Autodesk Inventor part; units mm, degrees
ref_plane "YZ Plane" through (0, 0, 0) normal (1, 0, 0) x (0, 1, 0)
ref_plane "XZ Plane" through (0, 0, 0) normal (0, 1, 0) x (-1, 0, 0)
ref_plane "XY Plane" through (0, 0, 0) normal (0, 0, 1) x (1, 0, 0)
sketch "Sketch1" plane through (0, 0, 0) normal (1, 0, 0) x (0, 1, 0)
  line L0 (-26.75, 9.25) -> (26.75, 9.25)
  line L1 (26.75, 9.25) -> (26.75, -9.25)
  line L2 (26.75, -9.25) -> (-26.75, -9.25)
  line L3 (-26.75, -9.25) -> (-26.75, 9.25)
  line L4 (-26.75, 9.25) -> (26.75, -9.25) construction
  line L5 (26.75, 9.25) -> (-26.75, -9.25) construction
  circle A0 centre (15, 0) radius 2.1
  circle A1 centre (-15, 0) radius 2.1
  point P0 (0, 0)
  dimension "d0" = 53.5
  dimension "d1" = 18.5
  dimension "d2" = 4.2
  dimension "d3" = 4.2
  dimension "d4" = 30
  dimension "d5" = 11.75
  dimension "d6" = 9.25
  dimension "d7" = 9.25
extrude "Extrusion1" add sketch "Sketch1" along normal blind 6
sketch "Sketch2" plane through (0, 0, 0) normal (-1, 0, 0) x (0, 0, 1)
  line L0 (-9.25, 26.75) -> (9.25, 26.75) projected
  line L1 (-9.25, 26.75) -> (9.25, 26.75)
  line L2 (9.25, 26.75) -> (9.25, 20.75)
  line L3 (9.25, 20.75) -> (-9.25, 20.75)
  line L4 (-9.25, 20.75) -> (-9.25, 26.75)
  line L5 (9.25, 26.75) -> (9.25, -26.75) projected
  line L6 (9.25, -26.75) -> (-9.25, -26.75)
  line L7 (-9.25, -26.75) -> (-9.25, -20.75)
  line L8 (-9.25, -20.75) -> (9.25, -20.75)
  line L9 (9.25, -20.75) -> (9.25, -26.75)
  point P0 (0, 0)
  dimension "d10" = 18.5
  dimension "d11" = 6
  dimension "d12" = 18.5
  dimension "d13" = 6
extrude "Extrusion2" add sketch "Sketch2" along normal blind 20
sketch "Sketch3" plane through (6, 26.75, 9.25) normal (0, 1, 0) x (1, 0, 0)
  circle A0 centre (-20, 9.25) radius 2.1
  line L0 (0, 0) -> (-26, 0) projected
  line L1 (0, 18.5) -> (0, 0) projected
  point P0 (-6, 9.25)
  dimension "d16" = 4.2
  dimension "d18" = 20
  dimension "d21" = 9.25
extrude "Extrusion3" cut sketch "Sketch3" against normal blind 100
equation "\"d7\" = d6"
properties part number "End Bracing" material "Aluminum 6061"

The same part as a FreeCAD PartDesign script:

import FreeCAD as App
import Part
import Sketcher

V = App.Vector
Q = App.Units.Quantity

doc = App.newDocument("Part")
body = doc.addObject("PartDesign::Body", "Body")

# Sketch on YZ plane
sketch1 = doc.addObject("Sketcher::SketchObject", "Sketch")
body.addObject(sketch1)
sketch1.AttachmentSupport = (doc.YZ_Plane, [""])
sketch1.MapMode = "FlatFace"
sketch1.addGeometry([
    Part.LineSegment(V(26.8, 9.2, 0), V(-26.8, 9.2, 0)),  # 0
    Part.LineSegment(V(-26.8, 9.2, 0), V(-26.8, -9.2, 0)),  # 1
    Part.LineSegment(V(-26.8, -9.2, 0), V(26.8, -9.2, 0)),  # 2
    Part.LineSegment(V(26.8, -9.2, 0), V(26.8, 9.2, 0)),  # 3
    Part.Circle(V(-15, 0, 0), V(0, 0, 1), 2.1),  # 4
    Part.Circle(V(15, 0, 0), V(0, 0, 1), 2.1),  # 5
], False)
sketch1.addConstraint([
    Sketcher.Constraint("Coincident", 0, 2, 1, 1),
    Sketcher.Constraint("Coincident", 1, 2, 2, 1),
    Sketcher.Constraint("Coincident", 2, 2, 3, 1),
    Sketcher.Constraint("Coincident", 3, 2, 0, 1),
    Sketcher.Constraint("Horizontal", 0),
    Sketcher.Constraint("Vertical", 1),
    Sketcher.Constraint("Horizontal", 2),
    Sketcher.Constraint("Vertical", 3),
    Sketcher.Constraint("Equal", 4, 5),
    Sketcher.Constraint("Symmetric", 4, 3, 5, 3, -1, 1),
    Sketcher.Constraint("Symmetric", 0, 2, 2, 2, -1, 1),
    Sketcher.Constraint("PointOnObject", 4, 3, -1),
    Sketcher.Constraint("Diameter", 4, Q("4.2 mm")),
    Sketcher.Constraint("DistanceX", 0, 2, 0, 1, Q("53.5 mm")),
    Sketcher.Constraint("DistanceY", 1, 2, 1, 1, Q("18.5 mm")),
    Sketcher.Constraint("DistanceX", 4, 3, 5, 3, Q("30 mm")),
])
pad1 = doc.addObject("PartDesign::Pad", "Pad")
body.addObject(pad1)
pad1.Profile = sketch1
pad1.Length = 6

# Sketch on YZ plane
sketch2 = doc.addObject("Sketcher::SketchObject", "Sketch001")
body.addObject(sketch2)
sketch2.AttachmentSupport = (doc.YZ_Plane, [""])
sketch2.MapMode = "FlatFace"
sketch2.addGeometry([
    Part.LineSegment(V(-27, 9, 0), V(-21, 9, 0)),  # 0
    Part.LineSegment(V(-21, 9, 0), V(-21, -9, 0)),  # 1
    Part.LineSegment(V(-21, -9, 0), V(-27, -9, 0)),  # 2
    Part.LineSegment(V(-27, -9, 0), V(-27, 9, 0)),  # 3
    Part.LineSegment(V(27, 9, 0), V(27, -9, 0)),  # 4
    Part.LineSegment(V(27, -9, 0), V(21, -9, 0)),  # 5
    Part.LineSegment(V(21, -9, 0), V(21, 9, 0)),  # 6
    Part.LineSegment(V(21, 9, 0), V(27, 9, 0)),  # 7
], False)
sketch2.addConstraint([
    Sketcher.Constraint("Coincident", 0, 2, 1, 1),
    Sketcher.Constraint("Coincident", 1, 2, 2, 1),
    Sketcher.Constraint("Coincident", 2, 2, 3, 1),
    Sketcher.Constraint("Coincident", 3, 2, 0, 1),
    Sketcher.Constraint("Coincident", 4, 2, 5, 1),
    Sketcher.Constraint("Coincident", 5, 2, 6, 1),
    Sketcher.Constraint("Coincident", 6, 2, 7, 1),
    Sketcher.Constraint("Coincident", 7, 2, 4, 1),
    Sketcher.Constraint("Horizontal", 0),
    Sketcher.Constraint("Vertical", 1),
    Sketcher.Constraint("Horizontal", 2),
    Sketcher.Constraint("Vertical", 3),
    Sketcher.Constraint("Vertical", 4),
    Sketcher.Constraint("Horizontal", 5),
    Sketcher.Constraint("Vertical", 6),
    Sketcher.Constraint("Horizontal", 7),
    Sketcher.Constraint("Symmetric", 3, 2, 4, 2, -1, 1),
    Sketcher.Constraint("Symmetric", 1, 2, 6, 2, -1, 1),
    Sketcher.Constraint("Horizontal", 2, 2, 4, 2),
    Sketcher.Constraint("DistanceX", 0, 1, 0, 2, Q("6 mm")),
    Sketcher.Constraint("DistanceY", 1, 2, 1, 1, Q("18.5 mm")),
    Sketcher.Constraint("DistanceX", 1, 2, 4, 2, Q("47.5 mm")),
])
pad2 = doc.addObject("PartDesign::Pad", "Pad001")
body.addObject(pad2)
pad2.Profile = sketch2
pad2.Length = 20
pad2.Reversed = True

# Sketch on XZ plane
sketch3 = doc.addObject("Sketcher::SketchObject", "Sketch002")
body.addObject(sketch3)
sketch3.AttachmentSupport = (doc.XZ_Plane, [""])
sketch3.MapMode = "FlatFace"
sketch3.AttachmentOffset = App.Placement(V(0, 0, -26.75), App.Rotation())
sketch3.addGeometry(Part.Circle(V(-14, 0, 0), V(0, 0, 1), 2.1), False)
sketch3.addConstraint([
    Sketcher.Constraint("PointOnObject", 0, 3, -1),
    Sketcher.Constraint("Diameter", 0, Q("4.2 mm")),
    Sketcher.Constraint("DistanceX", 0, 3, -1, 1, Q("14 mm")),
])
pocket1 = doc.addObject("PartDesign::Pocket", "Pocket")
body.addObject(pocket1)
pocket1.Profile = sketch3
pocket1.Length = 100
pocket1.Reversed = True

doc.recompute()
